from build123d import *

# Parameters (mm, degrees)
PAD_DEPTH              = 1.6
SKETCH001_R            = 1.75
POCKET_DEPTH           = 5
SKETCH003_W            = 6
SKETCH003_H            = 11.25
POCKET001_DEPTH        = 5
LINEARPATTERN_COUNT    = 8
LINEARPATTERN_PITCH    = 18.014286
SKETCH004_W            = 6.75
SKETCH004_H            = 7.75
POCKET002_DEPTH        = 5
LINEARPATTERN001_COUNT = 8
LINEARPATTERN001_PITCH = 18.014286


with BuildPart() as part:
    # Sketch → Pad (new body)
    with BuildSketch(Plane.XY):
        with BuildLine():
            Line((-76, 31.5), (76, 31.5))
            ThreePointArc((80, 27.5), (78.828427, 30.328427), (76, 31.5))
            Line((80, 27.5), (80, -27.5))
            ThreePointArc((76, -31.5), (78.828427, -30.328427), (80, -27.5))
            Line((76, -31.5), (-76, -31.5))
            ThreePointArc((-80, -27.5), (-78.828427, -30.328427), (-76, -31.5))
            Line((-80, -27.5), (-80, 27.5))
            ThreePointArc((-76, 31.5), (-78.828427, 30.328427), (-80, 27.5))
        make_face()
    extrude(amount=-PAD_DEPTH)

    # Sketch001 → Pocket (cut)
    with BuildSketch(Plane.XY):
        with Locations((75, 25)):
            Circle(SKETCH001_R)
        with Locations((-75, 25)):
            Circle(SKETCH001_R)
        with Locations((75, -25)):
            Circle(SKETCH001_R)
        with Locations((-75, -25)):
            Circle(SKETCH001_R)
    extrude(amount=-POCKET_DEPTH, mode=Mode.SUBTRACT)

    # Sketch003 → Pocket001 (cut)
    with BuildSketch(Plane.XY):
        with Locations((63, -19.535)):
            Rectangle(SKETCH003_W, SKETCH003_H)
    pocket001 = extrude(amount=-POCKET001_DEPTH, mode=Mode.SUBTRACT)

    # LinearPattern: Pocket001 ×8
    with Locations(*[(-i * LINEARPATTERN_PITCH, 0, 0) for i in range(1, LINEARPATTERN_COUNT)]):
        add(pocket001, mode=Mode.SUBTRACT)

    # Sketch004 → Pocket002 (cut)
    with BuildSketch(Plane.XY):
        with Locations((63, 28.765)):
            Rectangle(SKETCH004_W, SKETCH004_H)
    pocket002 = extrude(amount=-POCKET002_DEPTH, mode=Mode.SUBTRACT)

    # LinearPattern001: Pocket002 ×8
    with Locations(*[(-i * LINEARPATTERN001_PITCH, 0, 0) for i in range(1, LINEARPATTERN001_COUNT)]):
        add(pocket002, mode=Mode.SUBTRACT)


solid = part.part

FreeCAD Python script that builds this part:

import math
import FreeCAD as App
import Part
import Sketcher
from FreeCAD import Vector
Q = App.Units.Quantity


def add_polygon(sketch, points):
    """Adds a closed chain of lines whose ends are joined by coincident constraints."""
    first, n = sketch.GeometryCount, len(points)
    for a, b in zip(points, points[1:] + points[:1]):
        sketch.addGeometry(Part.LineSegment(App.Vector(*a, 0), App.Vector(*b, 0)), False)
    for i in range(n):
        sketch.addConstraint(Sketcher.Constraint("Coincident", first + i, 2, first + (i + 1) % n, 1))

doc = App.newDocument("Part")
params = doc.addObject("Spreadsheet::Sheet", "Params")
for row, (alias, value) in enumerate([
    ("sketch1_radius", "4 mm"),
    ("sketch1_width", "152 mm"),
    ("sketch1_height", "55 mm"),
    ("pad1_length", "1.6 mm"),
    ("sketch2_diameter", "3.5 mm"),
    ("pocket1_length", "5 mm"),
    ("sketch3_width", "6 mm"),
    ("sketch3_height", "11.25 mm"),
    ("pocket2_length", "5 mm"),
    ("linearpattern_pitch", "18.014286 mm"),
    ("sketch4_width", "6.75 mm"),
    ("sketch4_height", "7.75 mm"),
    ("pocket3_length", "5 mm"),
    ("linearpattern2_pitch", "18.014286 mm"),
], start=1):
    params.set(f"A{row}", alias)
    params.set(f"B{row}", "=" + value)
    params.setAlias(f"B{row}", alias)

body = doc.addObject("PartDesign::Body", "Body")

sketch1 = body.newObject("Sketcher::SketchObject", "Sketch")
sketch1.AttachmentSupport = (doc.getObject("XY_Plane"), [""])
sketch1.MapMode = "FlatFace"
sketch1.addGeometry([
    Part.LineSegment(Vector(76, 31.5, 0), Vector(-76, 31.5, 0)),
    Part.ArcOfCircle(Part.Circle(Vector(-76, 27.5, 0), Vector(0, 0, 1), 4), math.radians(90.000006), math.radians(179.999994)),
    Part.LineSegment(Vector(-80, 27.5, 0), Vector(-80, -27.5, 0)),
    Part.ArcOfCircle(Part.Circle(Vector(-76, -27.5, 0), Vector(0, 0, 1), 4), math.radians(-179.999994), math.radians(-90.000006)),
    Part.LineSegment(Vector(-76, -31.5, 0), Vector(76, -31.5, 0)),
    Part.ArcOfCircle(Part.Circle(Vector(76, -27.5, 0), Vector(0, 0, 1), 4), math.radians(-89.999994), math.radians(-0.000006)),
    Part.LineSegment(Vector(80, -27.5, 0), Vector(80, 27.5, 0)),
    Part.ArcOfCircle(Part.Circle(Vector(76, 27.5, 0), Vector(0, 0, 1), 4), math.radians(0.000006), math.radians(89.999994)),
], False)
sketch1.addConstraint([
    Sketcher.Constraint("Tangent", 0, 2, 1, 1),
    Sketcher.Constraint("Tangent", 1, 2, 2, 1),
    Sketcher.Constraint("Tangent", 2, 2, 3, 1),
    Sketcher.Constraint("Tangent", 3, 2, 4, 1),
    Sketcher.Constraint("Tangent", 4, 2, 5, 1),
    Sketcher.Constraint("Tangent", 5, 2, 6, 1),
    Sketcher.Constraint("Tangent", 6, 2, 7, 1),
    Sketcher.Constraint("Tangent", 7, 2, 0, 1),
    Sketcher.Constraint("Horizontal", 0),
    Sketcher.Constraint("Vertical", 2),
    Sketcher.Constraint("Horizontal", 4),
    Sketcher.Constraint("Vertical", 6),
    Sketcher.Constraint("Equal", 1, 3),
    Sketcher.Constraint("Equal", 3, 5),
    Sketcher.Constraint("Equal", 5, 7),
    Sketcher.Constraint("Symmetric", 1, 3, 5, 3, -1, 1),
    Sketcher.Constraint("Radius", 1, Q("4 mm")),
    Sketcher.Constraint("DistanceX", 0, 2, 0, 1, Q("152 mm")),
    Sketcher.Constraint("DistanceY", 2, 2, 2, 1, Q("55 mm")),
])
sketch1.setExpression("Constraints[16]", "Params.sketch1_radius")
sketch1.setExpression("Constraints[17]", "Params.sketch1_width")
sketch1.setExpression("Constraints[18]", "Params.sketch1_height")
pad1 = body.newObject("PartDesign::Pad", "Pad")
pad1.Profile = sketch1
pad1.setExpression("Length", "Params.pad1_length")
pad1.Reversed = True

sketch2 = body.newObject("Sketcher::SketchObject", "Sketch001")
sketch2.AttachmentSupport = (doc.getObject("XY_Plane"), [""])
sketch2.MapMode = "FlatFace"
sketch2.addGeometry([
    Part.Circle(Vector(75, 25, 0), Vector(0, 0, 1), 1.75),
    Part.Circle(Vector(-75, 25, 0), Vector(0, 0, 1), 1.75),
    Part.Circle(Vector(75, -25, 0), Vector(0, 0, 1), 1.75),
    Part.Circle(Vector(-75, -25, 0), Vector(0, 0, 1), 1.75),
], False)
sketch2.addConstraint([
    Sketcher.Constraint("Equal", 0, 1),
    Sketcher.Constraint("Equal", 1, 2),
    Sketcher.Constraint("Equal", 2, 3),
    Sketcher.Constraint("Symmetric", 1, 3, 2, 3, -1, 1),
    Sketcher.Constraint("Symmetric", 0, 3, 3, 3, -1, 1),
    Sketcher.Constraint("Symmetric", 0, 3, 1, 3, -2),
    Sketcher.Constraint("Diameter", 0, Q("3.5 mm")),
    Sketcher.Constraint("DistanceX", -1, 1, 0, 3, Q("75 mm")),
    Sketcher.Constraint("DistanceY", -1, 1, 0, 3, Q("25 mm")),
])
sketch2.setExpression("Constraints[6]", "Params.sketch2_diameter")
pocket1 = body.newObject("PartDesign::Pocket", "Pocket")
pocket1.Profile = sketch2
pocket1.setExpression("Length", "Params.pocket1_length")

sketch3 = body.newObject("Sketcher::SketchObject", "Sketch002")
sketch3.AttachmentSupport = (doc.getObject("XY_Plane"), [""])
sketch3.MapMode = "FlatFace"
add_polygon(sketch3, [(60, -13.91), (60, -25.16), (66, -25.16), (66, -13.91)])
sketch3.addConstraint([
    Sketcher.Constraint("Vertical", 0),
    Sketcher.Constraint("Horizontal", 1),
    Sketcher.Constraint("Vertical", 2),
    Sketcher.Constraint("Horizontal", 3),
    Sketcher.Constraint("DistanceX", 1, 1, 1, 2, Q("6 mm")),
    Sketcher.Constraint("DistanceX", -1, 1, 0, 2, Q("60 mm")),
    Sketcher.Constraint("DistanceY", 0, 2, 0, 1, Q("11.25 mm")),
    Sketcher.Constraint("DistanceY", 0, 2, -1, 1, Q("25.16 mm")),
])
sketch3.setExpression("Constraints[8]", "Params.sketch3_width")
sketch3.setExpression("Constraints[10]", "Params.sketch3_height")
pocket2 = body.newObject("PartDesign::Pocket", "Pocket001")
pocket2.Profile = sketch3
pocket2.setExpression("Length", "Params.pocket2_length")
doc.recompute()

linearpattern = body.newObject("PartDesign::LinearPattern", "LinearPattern")
linearpattern.Originals = [pocket2]
linearpattern.Direction = (doc.getObject("X_Axis"), [""])
linearpattern.Mode = "offset"
linearpattern.setExpression("Offset", "Params.linearpattern_pitch")
linearpattern.Occurrences = 8
linearpattern.Reversed = True
body.Tip = linearpattern

sketch4 = body.newObject("Sketcher::SketchObject", "Sketch003")
sketch4.AttachmentSupport = (doc.getObject("XY_Plane"), [""])
sketch4.MapMode = "FlatFace"
add_polygon(sketch4, [(59.625, 32.64), (59.625, 24.89), (66.375, 24.89), (66.375, 32.64)])
sketch4.addConstraint([
    Sketcher.Constraint("Vertical", 0),
    Sketcher.Constraint("Horizontal", 1),
    Sketcher.Constraint("Vertical", 2),
    Sketcher.Constraint("Horizontal", 3),
    Sketcher.Constraint("DistanceX", 1, 1, 1, 2, Q("6.75 mm")),
    Sketcher.Constraint("DistanceY", 0, 2, 0, 1, Q("7.75 mm")),
    Sketcher.Constraint("DistanceY", -1, 1, 0, 2, Q("24.89 mm")),
    Sketcher.Constraint("DistanceX", -1, 1, 0, 2, Q("59.625 mm")),
])
sketch4.setExpression("Constraints[8]", "Params.sketch4_width")
sketch4.setExpression("Constraints[9]", "Params.sketch4_height")
pocket3 = body.newObject("PartDesign::Pocket", "Pocket002")
pocket3.Profile = sketch4
pocket3.setExpression("Length", "Params.pocket3_length")
doc.recompute()

linearpattern2 = body.newObject("PartDesign::LinearPattern", "LinearPattern001")
linearpattern2.Originals = [pocket3]
linearpattern2.Direction = (doc.getObject("X_Axis"), [""])
linearpattern2.Mode = "offset"
linearpattern2.setExpression("Offset", "Params.linearpattern2_pitch")
linearpattern2.Occurrences = 8
linearpattern2.Reversed = True
body.Tip = linearpattern2

doc.recompute()
